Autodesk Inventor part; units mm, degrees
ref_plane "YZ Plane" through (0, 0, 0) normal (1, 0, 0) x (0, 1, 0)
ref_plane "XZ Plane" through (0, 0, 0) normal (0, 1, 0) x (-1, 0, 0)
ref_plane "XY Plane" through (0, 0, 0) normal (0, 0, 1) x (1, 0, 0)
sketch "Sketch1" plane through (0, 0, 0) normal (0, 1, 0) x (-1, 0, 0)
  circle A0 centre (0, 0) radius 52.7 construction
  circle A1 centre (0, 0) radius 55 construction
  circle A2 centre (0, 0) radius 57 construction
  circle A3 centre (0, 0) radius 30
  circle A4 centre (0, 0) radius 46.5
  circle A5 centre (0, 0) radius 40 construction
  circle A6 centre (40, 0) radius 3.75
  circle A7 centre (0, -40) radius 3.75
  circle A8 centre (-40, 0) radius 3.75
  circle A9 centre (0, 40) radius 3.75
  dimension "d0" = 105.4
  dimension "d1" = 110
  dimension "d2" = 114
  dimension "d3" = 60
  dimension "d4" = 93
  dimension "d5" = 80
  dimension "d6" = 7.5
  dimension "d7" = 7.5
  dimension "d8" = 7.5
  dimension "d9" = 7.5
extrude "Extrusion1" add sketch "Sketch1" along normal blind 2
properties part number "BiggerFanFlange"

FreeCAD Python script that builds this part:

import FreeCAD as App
import Part
import Sketcher

doc = App.newDocument("Part")
body = doc.addObject("PartDesign::Body", "Body")

sketch1 = doc.addObject("Sketcher::SketchObject", "Sketch")
body.addObject(sketch1)
sketch1.AttachmentSupport = (doc.XZ_Plane, [""])
sketch1.MapMode = "FlatFace"
sketch1.addGeometry([
    Part.Circle(App.Vector(0, 0, 0), App.Vector(0, 0, 1), 46.5),
    Part.Circle(App.Vector(0, -40, 0), App.Vector(0, 0, 1), 3.75),
    Part.Circle(App.Vector(40, 0, 0), App.Vector(0, 0, 1), 3.75),
    Part.Circle(App.Vector(0, 0, 0), App.Vector(0, 0, 1), 30),
    Part.Circle(App.Vector(-40, 0, 0), App.Vector(0, 0, 1), 3.75),
    Part.Circle(App.Vector(0, 40, 0), App.Vector(0, 0, 1), 3.75),
], False)
sketch1.addConstraint([
    Sketcher.Constraint("Coincident", 0, 3, -1, 1),
    Sketcher.Constraint("Coincident", 3, 3, -1, 1),
    Sketcher.Constraint("Equal", 1, 2),
    Sketcher.Constraint("Equal", 2, 4),
    Sketcher.Constraint("Equal", 4, 5),
    Sketcher.Constraint("Symmetric", 2, 3, 4, 3, -1, 1),
    Sketcher.Constraint("Symmetric", 1, 3, 5, 3, -1, 1),
    Sketcher.Constraint("PointOnObject", 1, 3, -2),
    Sketcher.Constraint("PointOnObject", 2, 3, -1),
    Sketcher.Constraint("Diameter", 0, 93.0),
    Sketcher.Constraint("Diameter", 3, 60.0),
    Sketcher.Constraint("Diameter", 1, 7.5),
    Sketcher.Constraint("DistanceX", 4, 3, 2, 3, 80.0),
    Sketcher.Constraint("DistanceY", 1, 3, 5, 3, 80.0),
])
pad1 = doc.addObject("PartDesign::Pad", "Pad")
body.addObject(pad1)
pad1.Profile = sketch1
pad1.Length = 2
pad1.Reversed = True

doc.recompute()
